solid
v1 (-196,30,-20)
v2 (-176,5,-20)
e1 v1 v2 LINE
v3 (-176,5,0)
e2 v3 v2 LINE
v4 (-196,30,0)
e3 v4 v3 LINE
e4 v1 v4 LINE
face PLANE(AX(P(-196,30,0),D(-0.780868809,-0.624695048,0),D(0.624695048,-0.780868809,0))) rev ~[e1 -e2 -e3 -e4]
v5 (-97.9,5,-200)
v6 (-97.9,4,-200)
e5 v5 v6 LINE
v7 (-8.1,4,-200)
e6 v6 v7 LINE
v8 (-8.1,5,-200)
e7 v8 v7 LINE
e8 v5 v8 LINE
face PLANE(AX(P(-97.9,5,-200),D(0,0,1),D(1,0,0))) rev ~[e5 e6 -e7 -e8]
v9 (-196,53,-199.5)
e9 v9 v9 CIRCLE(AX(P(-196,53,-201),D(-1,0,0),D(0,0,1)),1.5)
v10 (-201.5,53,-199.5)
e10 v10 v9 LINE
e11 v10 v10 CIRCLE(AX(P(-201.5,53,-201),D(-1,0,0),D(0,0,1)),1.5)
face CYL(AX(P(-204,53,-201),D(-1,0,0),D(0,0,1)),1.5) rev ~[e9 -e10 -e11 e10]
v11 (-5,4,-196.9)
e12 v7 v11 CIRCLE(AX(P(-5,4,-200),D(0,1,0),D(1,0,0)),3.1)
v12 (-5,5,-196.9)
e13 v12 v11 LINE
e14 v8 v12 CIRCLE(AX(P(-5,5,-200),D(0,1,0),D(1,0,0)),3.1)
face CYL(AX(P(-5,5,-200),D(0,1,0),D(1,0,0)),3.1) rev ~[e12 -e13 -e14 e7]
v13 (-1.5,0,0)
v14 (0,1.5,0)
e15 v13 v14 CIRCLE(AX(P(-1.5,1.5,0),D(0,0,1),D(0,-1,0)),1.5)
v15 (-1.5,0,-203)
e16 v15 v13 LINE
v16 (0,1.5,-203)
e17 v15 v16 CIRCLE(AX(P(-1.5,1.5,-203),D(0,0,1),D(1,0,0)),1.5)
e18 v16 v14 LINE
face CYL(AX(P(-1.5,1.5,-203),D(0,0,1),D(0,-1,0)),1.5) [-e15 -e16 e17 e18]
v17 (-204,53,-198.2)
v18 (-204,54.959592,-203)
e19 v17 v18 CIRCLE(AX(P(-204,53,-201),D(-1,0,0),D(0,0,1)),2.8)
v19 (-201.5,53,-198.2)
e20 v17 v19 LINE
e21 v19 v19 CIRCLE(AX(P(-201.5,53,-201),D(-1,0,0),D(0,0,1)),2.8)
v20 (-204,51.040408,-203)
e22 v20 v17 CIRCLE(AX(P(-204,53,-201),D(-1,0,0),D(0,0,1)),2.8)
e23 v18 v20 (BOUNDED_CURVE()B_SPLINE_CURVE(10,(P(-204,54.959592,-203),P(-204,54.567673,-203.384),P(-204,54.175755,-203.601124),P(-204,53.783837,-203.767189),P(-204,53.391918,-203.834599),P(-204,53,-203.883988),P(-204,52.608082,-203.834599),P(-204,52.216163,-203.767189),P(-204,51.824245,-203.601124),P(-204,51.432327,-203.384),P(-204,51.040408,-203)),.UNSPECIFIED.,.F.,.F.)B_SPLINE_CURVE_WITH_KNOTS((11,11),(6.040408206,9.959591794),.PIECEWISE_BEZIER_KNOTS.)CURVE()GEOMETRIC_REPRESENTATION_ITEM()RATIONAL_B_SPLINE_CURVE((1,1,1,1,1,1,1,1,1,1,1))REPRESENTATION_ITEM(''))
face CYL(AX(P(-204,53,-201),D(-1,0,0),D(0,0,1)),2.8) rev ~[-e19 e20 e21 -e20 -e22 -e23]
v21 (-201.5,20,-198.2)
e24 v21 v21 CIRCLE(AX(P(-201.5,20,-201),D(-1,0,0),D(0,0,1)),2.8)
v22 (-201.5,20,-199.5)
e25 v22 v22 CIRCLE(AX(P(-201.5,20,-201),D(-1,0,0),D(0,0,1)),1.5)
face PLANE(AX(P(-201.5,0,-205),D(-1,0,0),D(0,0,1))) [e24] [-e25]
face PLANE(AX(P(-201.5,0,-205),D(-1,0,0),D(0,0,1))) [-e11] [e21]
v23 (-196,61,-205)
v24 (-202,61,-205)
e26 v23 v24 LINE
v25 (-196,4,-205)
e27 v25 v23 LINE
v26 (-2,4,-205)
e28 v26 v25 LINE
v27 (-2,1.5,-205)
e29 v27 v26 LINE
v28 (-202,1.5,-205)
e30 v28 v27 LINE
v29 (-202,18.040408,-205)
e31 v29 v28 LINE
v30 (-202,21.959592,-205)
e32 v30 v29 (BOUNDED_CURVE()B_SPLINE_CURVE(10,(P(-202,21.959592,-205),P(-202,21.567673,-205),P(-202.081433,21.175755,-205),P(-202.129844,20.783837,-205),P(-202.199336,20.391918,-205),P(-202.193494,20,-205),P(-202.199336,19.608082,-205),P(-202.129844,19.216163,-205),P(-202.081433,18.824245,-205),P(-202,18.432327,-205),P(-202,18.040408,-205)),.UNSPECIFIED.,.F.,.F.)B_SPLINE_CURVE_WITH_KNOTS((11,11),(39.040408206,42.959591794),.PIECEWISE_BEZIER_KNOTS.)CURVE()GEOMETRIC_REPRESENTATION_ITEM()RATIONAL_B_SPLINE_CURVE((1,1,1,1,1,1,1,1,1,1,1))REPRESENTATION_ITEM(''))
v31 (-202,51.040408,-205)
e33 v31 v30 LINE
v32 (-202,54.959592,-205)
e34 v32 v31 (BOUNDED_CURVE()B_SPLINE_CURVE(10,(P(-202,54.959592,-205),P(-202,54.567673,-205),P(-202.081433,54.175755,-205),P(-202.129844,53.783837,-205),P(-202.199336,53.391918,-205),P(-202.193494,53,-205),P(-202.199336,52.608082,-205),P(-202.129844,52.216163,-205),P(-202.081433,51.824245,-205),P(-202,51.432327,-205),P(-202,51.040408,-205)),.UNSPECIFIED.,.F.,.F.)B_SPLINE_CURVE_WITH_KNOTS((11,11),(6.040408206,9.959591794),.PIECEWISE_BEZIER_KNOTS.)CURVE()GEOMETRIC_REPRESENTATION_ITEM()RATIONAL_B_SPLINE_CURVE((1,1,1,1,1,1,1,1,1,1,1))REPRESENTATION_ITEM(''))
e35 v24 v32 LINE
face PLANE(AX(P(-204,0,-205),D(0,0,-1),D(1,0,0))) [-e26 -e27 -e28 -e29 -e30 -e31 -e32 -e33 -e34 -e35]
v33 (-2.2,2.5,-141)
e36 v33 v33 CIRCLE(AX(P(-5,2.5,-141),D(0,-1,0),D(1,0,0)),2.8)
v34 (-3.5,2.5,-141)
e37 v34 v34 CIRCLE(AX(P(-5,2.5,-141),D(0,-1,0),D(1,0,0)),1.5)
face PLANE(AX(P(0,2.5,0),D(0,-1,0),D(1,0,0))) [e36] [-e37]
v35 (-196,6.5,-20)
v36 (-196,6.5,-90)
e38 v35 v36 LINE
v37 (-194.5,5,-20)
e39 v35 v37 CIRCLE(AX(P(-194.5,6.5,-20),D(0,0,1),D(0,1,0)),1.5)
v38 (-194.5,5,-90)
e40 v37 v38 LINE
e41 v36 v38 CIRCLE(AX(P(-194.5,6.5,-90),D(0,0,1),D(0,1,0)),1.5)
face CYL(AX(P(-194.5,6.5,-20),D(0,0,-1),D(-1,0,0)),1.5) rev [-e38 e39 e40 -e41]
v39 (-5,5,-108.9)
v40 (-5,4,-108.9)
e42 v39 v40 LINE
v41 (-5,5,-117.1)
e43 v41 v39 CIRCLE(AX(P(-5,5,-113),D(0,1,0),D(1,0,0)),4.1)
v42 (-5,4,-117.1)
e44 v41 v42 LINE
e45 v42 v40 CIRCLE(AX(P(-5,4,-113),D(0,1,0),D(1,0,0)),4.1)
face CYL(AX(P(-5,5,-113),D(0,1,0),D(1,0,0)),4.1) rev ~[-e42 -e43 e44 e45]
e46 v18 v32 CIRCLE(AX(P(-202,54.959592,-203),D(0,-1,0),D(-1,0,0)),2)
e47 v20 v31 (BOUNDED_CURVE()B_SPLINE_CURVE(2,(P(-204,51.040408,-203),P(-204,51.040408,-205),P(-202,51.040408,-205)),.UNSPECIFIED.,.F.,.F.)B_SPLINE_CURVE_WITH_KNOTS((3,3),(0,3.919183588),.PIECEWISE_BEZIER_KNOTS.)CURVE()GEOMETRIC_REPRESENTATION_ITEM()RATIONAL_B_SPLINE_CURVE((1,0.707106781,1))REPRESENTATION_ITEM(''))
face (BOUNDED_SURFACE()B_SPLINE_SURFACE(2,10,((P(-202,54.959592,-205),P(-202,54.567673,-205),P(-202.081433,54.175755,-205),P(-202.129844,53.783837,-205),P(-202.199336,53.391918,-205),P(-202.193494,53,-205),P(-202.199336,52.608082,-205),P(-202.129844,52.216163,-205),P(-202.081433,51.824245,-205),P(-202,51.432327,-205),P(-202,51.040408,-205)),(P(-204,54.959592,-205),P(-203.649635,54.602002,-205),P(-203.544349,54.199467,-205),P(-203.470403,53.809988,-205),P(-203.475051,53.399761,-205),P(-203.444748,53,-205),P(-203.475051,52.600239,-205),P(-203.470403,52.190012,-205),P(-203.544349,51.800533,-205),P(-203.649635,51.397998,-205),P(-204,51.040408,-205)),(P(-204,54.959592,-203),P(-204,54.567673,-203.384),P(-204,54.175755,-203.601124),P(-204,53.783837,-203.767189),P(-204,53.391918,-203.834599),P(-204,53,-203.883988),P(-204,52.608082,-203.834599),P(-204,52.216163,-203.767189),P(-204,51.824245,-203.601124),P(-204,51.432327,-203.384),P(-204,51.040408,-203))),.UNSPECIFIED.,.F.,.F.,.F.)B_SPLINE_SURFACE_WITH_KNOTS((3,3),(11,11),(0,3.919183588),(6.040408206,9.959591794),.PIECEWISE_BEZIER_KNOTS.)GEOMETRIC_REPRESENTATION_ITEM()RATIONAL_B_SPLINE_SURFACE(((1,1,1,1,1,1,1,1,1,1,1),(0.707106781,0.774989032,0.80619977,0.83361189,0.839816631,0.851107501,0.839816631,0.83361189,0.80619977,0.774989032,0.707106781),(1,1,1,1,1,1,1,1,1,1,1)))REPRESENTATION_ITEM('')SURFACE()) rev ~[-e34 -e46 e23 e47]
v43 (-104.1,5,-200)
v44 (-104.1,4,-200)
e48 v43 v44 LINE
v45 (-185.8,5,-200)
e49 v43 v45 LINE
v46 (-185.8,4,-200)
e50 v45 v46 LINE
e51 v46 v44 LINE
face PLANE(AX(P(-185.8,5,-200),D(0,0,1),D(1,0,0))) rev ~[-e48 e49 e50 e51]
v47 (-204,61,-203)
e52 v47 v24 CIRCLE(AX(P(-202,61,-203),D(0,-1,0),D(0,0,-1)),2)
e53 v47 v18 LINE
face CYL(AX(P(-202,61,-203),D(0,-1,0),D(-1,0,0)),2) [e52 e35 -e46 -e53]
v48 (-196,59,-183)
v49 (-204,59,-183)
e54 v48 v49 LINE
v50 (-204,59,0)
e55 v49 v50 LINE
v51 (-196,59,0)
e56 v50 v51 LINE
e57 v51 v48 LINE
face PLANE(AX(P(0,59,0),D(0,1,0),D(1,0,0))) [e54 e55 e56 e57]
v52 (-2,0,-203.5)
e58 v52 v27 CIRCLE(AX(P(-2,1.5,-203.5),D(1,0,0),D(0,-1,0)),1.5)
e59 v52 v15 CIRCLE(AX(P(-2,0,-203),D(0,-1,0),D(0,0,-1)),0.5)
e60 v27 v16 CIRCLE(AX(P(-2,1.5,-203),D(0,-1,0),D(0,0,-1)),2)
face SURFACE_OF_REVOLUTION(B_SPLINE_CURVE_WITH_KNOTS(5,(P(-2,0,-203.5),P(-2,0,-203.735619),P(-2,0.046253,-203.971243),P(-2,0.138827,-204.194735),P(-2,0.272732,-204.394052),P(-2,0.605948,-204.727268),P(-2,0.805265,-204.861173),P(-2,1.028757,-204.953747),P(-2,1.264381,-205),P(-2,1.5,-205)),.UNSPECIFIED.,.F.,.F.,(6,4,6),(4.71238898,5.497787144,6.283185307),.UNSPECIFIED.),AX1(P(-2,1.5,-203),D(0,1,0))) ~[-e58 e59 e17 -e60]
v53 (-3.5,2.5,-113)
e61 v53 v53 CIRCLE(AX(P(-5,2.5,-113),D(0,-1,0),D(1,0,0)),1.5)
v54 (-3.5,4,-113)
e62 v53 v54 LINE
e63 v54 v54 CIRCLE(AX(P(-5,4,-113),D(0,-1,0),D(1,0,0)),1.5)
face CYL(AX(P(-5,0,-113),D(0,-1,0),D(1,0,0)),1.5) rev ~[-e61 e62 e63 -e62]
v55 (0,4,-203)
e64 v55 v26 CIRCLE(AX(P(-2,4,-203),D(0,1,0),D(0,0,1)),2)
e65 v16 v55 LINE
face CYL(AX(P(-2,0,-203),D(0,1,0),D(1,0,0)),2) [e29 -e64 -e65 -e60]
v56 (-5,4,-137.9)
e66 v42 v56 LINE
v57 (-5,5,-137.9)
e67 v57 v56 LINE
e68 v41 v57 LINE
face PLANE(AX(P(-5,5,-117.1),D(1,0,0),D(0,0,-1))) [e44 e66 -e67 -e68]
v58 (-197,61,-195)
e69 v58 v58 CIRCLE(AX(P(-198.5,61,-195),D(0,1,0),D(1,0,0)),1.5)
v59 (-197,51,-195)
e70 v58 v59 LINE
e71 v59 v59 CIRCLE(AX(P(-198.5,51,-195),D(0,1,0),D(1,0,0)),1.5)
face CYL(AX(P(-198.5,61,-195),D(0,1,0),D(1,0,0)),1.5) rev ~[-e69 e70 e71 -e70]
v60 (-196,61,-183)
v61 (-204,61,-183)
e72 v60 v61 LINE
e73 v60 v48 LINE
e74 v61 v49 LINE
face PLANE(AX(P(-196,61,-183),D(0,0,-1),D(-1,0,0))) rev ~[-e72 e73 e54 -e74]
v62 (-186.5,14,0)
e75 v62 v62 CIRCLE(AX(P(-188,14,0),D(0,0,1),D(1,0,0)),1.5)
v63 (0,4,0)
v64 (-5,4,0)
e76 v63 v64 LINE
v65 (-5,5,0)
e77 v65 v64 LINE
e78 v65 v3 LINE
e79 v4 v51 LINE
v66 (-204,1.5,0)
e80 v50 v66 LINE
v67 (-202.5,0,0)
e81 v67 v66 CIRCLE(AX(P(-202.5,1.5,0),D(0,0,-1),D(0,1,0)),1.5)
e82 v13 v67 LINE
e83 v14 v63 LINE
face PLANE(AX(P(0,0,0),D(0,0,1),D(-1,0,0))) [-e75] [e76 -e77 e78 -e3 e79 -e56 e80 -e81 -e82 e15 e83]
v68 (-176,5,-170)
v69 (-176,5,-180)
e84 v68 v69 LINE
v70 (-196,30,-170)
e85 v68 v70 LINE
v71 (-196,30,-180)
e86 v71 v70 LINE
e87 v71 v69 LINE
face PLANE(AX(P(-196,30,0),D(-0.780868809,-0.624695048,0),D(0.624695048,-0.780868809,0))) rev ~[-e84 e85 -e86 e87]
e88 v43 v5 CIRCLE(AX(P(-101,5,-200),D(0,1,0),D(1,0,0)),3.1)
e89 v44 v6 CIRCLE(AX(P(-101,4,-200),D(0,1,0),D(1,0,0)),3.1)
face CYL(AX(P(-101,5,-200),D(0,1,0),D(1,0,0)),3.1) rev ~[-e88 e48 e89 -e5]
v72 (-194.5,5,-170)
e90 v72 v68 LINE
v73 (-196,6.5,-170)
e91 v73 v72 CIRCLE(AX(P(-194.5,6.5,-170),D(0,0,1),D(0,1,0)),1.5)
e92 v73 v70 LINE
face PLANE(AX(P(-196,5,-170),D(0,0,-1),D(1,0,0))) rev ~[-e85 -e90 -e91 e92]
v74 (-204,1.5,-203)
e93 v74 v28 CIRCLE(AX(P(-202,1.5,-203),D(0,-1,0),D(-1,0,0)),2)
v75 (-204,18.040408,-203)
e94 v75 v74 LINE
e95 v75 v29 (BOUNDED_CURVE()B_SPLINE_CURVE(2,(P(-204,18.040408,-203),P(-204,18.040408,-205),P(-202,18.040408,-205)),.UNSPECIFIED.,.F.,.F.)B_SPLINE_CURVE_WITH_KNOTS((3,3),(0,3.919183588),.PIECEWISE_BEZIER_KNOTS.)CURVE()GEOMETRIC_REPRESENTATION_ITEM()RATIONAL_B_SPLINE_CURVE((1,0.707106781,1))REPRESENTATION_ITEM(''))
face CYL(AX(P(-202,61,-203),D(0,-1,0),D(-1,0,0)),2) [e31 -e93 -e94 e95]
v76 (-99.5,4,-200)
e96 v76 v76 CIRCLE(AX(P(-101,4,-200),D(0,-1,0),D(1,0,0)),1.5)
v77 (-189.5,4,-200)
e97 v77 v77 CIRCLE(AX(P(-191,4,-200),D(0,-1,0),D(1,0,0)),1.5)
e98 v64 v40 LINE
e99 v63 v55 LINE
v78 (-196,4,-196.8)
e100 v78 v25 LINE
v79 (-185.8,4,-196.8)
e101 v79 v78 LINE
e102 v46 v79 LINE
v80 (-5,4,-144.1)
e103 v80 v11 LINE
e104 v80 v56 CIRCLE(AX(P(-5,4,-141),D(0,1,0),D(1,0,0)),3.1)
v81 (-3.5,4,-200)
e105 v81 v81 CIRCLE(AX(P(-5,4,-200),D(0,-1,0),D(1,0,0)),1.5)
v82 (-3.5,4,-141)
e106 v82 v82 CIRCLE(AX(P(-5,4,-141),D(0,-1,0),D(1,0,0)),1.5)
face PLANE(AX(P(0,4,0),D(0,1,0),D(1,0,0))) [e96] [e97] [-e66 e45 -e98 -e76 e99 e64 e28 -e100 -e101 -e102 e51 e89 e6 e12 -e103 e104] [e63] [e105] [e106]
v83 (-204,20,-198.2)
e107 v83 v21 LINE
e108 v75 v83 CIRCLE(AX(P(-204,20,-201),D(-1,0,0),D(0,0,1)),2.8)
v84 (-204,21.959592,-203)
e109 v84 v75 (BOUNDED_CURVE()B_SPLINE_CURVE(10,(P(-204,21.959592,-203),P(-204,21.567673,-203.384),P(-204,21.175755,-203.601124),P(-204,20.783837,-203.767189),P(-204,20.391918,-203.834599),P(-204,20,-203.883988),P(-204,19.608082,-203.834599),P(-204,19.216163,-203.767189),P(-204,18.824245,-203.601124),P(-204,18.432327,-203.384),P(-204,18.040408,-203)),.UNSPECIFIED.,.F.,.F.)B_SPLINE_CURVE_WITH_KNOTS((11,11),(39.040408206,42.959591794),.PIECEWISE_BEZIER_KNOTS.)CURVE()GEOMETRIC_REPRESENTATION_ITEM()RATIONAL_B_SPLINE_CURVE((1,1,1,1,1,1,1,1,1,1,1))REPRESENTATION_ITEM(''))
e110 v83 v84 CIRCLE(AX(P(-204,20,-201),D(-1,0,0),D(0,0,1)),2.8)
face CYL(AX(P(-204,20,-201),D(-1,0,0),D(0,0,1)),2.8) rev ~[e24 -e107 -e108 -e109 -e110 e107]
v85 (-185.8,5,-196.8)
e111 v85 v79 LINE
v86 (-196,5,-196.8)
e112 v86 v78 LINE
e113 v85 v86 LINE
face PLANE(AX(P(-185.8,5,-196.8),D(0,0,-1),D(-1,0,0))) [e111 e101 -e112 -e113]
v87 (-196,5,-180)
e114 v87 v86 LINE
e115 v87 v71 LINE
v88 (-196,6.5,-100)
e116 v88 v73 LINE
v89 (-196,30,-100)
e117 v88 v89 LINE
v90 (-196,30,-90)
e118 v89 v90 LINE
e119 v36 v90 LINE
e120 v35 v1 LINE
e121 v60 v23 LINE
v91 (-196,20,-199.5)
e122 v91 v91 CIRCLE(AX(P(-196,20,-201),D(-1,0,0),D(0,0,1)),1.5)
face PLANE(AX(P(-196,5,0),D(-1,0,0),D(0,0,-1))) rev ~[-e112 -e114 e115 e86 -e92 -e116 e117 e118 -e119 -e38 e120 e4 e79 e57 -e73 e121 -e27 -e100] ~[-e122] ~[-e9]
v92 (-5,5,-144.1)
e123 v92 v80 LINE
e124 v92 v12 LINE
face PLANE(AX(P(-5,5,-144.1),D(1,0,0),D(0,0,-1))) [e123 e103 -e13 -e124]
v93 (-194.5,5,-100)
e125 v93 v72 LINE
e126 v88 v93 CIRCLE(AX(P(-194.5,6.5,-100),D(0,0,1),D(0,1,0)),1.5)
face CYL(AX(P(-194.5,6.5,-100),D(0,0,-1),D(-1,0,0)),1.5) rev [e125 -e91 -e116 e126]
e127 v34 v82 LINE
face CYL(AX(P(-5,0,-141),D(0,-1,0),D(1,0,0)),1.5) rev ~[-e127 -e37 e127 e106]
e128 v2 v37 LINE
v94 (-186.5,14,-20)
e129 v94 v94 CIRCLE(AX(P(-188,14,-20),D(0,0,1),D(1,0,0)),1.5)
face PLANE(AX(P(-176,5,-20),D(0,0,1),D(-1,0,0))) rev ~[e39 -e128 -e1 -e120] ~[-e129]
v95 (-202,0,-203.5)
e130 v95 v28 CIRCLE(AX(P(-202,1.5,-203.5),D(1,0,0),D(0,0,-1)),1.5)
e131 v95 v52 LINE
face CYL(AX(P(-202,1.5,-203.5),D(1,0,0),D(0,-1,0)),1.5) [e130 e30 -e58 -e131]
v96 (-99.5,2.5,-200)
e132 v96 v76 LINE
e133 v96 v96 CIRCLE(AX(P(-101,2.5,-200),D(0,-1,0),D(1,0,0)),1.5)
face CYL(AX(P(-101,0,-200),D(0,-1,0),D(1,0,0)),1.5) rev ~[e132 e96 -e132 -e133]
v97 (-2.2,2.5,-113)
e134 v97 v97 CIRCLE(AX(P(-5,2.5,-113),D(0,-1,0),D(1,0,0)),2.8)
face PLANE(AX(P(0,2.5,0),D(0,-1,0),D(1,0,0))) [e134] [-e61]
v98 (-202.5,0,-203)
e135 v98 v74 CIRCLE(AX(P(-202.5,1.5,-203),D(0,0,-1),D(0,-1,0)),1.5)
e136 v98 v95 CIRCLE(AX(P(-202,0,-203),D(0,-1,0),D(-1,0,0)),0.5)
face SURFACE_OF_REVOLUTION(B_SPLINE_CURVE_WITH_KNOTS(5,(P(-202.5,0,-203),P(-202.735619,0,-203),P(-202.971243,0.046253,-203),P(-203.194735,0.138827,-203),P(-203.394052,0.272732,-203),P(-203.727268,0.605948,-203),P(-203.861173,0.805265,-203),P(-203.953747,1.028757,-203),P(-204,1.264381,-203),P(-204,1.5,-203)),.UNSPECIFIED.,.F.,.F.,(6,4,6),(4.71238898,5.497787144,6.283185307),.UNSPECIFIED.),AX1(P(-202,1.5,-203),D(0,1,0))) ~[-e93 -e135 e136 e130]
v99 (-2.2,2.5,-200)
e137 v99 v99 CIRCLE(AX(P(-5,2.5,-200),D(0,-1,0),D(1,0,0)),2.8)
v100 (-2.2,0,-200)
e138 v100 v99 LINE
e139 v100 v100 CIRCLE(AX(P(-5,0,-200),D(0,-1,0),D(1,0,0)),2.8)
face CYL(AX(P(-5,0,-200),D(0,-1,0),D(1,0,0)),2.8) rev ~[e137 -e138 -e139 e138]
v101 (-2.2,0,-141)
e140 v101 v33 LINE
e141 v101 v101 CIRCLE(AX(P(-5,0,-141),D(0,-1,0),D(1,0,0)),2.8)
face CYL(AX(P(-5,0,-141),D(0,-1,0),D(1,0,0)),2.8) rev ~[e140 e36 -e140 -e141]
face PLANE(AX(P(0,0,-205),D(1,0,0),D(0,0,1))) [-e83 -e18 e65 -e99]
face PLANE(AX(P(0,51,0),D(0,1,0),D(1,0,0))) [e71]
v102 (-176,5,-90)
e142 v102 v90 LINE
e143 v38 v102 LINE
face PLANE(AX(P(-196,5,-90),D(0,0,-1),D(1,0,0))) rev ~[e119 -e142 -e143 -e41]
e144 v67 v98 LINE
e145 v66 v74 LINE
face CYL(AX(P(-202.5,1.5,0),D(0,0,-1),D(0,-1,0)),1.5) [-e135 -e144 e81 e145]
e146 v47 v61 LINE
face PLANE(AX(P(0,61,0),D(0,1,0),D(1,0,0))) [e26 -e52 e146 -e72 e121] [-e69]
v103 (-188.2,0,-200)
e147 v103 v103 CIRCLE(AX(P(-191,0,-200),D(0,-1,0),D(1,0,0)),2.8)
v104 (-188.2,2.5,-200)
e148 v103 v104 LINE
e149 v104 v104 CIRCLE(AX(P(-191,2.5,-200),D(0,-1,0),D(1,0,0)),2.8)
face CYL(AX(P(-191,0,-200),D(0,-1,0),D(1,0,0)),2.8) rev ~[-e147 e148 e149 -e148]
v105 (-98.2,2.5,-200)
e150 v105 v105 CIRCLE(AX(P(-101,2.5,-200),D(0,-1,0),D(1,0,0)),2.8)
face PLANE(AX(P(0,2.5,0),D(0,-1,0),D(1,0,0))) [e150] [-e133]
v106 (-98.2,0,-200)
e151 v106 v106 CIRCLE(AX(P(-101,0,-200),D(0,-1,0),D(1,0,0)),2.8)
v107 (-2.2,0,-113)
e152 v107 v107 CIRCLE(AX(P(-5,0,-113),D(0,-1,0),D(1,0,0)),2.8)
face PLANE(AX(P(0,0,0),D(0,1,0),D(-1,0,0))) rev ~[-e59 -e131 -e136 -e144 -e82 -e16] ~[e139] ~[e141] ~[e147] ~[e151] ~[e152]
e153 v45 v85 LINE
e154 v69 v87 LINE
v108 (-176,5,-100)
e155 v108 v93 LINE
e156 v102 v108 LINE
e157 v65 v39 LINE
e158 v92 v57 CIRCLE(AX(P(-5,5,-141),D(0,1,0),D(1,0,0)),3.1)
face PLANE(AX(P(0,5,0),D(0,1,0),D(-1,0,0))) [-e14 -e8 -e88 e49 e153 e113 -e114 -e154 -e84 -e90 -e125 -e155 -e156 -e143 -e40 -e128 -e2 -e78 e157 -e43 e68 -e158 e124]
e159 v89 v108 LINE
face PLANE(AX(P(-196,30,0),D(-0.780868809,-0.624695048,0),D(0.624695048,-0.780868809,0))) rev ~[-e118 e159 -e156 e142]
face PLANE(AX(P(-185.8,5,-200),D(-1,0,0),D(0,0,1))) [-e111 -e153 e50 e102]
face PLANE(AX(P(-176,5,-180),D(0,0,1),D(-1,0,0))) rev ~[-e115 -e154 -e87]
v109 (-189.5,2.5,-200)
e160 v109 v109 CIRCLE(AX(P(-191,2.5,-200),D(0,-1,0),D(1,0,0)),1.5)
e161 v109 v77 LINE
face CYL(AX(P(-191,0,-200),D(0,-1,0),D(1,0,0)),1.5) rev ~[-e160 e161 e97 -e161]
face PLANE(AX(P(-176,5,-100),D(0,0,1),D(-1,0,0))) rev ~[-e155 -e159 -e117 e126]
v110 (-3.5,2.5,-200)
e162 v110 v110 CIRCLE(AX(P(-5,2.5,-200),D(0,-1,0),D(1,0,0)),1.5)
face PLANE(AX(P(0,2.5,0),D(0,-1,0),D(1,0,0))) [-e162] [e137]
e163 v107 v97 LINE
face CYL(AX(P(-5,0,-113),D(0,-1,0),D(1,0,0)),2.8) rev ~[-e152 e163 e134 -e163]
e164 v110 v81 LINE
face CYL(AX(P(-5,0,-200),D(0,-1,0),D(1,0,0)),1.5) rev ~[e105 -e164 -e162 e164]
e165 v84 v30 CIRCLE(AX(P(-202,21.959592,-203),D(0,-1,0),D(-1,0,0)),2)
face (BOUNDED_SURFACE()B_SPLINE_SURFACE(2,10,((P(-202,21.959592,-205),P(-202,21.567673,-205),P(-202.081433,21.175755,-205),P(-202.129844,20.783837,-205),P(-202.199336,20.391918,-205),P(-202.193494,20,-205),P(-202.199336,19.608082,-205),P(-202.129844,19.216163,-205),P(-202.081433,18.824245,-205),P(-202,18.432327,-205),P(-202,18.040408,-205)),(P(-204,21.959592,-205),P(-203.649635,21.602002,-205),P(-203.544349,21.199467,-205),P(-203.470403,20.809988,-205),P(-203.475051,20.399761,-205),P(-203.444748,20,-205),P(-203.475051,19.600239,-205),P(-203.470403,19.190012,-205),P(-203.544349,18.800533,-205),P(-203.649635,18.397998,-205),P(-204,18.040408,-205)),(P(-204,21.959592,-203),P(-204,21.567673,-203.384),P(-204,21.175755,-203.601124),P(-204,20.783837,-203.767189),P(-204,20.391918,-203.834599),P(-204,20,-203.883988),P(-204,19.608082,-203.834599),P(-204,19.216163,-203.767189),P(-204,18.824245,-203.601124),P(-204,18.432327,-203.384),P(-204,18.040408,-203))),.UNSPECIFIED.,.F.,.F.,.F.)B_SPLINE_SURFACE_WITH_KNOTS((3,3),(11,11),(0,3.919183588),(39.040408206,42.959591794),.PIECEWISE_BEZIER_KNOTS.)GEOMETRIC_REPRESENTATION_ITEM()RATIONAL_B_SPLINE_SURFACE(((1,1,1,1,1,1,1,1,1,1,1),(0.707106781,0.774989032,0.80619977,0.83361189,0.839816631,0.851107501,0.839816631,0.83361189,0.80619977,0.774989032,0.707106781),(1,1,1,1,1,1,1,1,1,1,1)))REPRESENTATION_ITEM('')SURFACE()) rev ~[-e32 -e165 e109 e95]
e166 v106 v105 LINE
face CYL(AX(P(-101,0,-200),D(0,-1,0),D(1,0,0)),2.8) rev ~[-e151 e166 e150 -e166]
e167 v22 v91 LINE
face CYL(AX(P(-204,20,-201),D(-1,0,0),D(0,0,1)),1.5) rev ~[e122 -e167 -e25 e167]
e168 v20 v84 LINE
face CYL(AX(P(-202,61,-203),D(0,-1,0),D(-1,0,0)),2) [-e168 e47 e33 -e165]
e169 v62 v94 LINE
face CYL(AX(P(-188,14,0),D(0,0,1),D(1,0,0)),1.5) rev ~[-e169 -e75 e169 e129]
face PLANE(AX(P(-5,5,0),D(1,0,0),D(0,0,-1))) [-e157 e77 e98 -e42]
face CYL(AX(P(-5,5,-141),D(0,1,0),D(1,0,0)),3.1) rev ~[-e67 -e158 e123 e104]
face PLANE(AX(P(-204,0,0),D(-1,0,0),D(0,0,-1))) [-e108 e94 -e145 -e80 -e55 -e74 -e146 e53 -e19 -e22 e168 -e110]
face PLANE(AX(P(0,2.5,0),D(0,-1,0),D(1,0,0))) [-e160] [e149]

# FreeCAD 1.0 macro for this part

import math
import FreeCAD as App
import Part
import Sketcher

V = App.Vector


def edges_at(feature, points):
    """Names of the edges that pass closest to the given points."""
    edges = feature.Shape.Edges
    near = lambda p: min(range(len(edges)), key=lambda i: edges[i].distToShape(Part.Vertex(*p))[0])
    return sorted({f"Edge{near(p) + 1}" for p in points})


def add_polygon(sketch, points):
    """Adds a closed chain of lines whose ends are joined by coincident constraints."""
    first, n = sketch.GeometryCount, len(points)
    for a, b in zip(points, points[1:] + points[:1]):
        sketch.addGeometry(Part.LineSegment(App.Vector(*a, 0), App.Vector(*b, 0)), False)
    for i in range(n):
        sketch.addConstraint(Sketcher.Constraint("Coincident", first + i, 2, first + (i + 1) % n, 1))

doc = App.newDocument("Part")
body = doc.addObject("PartDesign::Body", "Body")

# Sketch on XZ plane
sketch1 = body.newObject("Sketcher::SketchObject", "Sketch")
sketch1.AttachmentSupport = (doc.getObject("XZ_Plane"), [""])
sketch1.MapMode = "FlatFace"
add_polygon(sketch1, [(-204, 0), (0, 0), (0, -205), (-204, -205)])  # lines 0-3
sketch1.addConstraint(Sketcher.Constraint("Horizontal", 0))
sketch1.addConstraint(Sketcher.Constraint("Vertical", 1))
sketch1.addConstraint(Sketcher.Constraint("Horizontal", 2))
sketch1.addConstraint(Sketcher.Constraint("Vertical", 3))
sketch1.addConstraint(Sketcher.Constraint("Coincident", 0, 2, -1, 1))
sketch1.addConstraint(Sketcher.Constraint("DistanceX", 0, 1, 0, 2, 204.0))
sketch1.addConstraint(Sketcher.Constraint("DistanceY", 1, 2, 1, 1, 205.0))
pad1 = body.newObject("PartDesign::Pad", "Pad")
pad1.Profile = sketch1
pad1.Length = 5
pad1.Reversed = True

# Sketch on XZ plane
sketch2 = body.newObject("Sketcher::SketchObject", "Sketch001")
sketch2.AttachmentSupport = (doc.getObject("XZ_Plane"), [""])
sketch2.MapMode = "FlatFace"
sketch2.AttachmentOffset = App.Placement(V(0, 0, -5), App.Rotation())
add_polygon(sketch2, [(-196, -205), (-204, -205), (-204, 0), (-196, 0)])  # lines 0-3
sketch2.addConstraint(Sketcher.Constraint("Horizontal", 0))
sketch2.addConstraint(Sketcher.Constraint("Vertical", 1))
sketch2.addConstraint(Sketcher.Constraint("Horizontal", 2))
sketch2.addConstraint(Sketcher.Constraint("Vertical", 3))
sketch2.addConstraint(Sketcher.Constraint("PointOnObject", 1, 2, -1))
sketch2.addConstraint(Sketcher.Constraint("DistanceX", 0, 2, 0, 1, 8.0))
sketch2.addConstraint(Sketcher.Constraint("DistanceY", 1, 1, 1, 2, 205.0))
sketch2.addConstraint(Sketcher.Constraint("DistanceX", 0, 2, -1, 1, 204.0))
pad2 = body.newObject("PartDesign::Pad", "Pad001")
pad2.Profile = sketch2
pad2.Length = 56
pad2.Reversed = True

# Sketch on XZ plane
sketch3 = body.newObject("Sketcher::SketchObject", "Sketch002")
sketch3.AttachmentSupport = (doc.getObject("XZ_Plane"), [""])
sketch3.MapMode = "FlatFace"
sketch3.AttachmentOffset = App.Placement(V(0, 0, -61), App.Rotation())
add_polygon(sketch3, [(-196, -183), (-204, -183), (-204, 0), (-196, 0)])  # lines 0-3
sketch3.addConstraint(Sketcher.Constraint("Horizontal", 0))
sketch3.addConstraint(Sketcher.Constraint("Vertical", 1))
sketch3.addConstraint(Sketcher.Constraint("Horizontal", 2))
sketch3.addConstraint(Sketcher.Constraint("Vertical", 3))
sketch3.addConstraint(Sketcher.Constraint("PointOnObject", 1, 2, -1))
sketch3.addConstraint(Sketcher.Constraint("DistanceX", 0, 2, 0, 1, 8.0))
sketch3.addConstraint(Sketcher.Constraint("DistanceY", 1, 1, 1, 2, 183.0))
sketch3.addConstraint(Sketcher.Constraint("DistanceX", 0, 2, -1, 1, 204.0))
pocket1 = body.newObject("PartDesign::Pocket", "Pocket")
pocket1.Profile = sketch3
pocket1.Length = 2
pocket1.Reversed = True

# Sketch on XZ plane
sketch4 = body.newObject("Sketcher::SketchObject", "Sketch003")
sketch4.AttachmentSupport = (doc.getObject("XZ_Plane"), [""])
sketch4.MapMode = "FlatFace"
sketch4.AttachmentOffset = App.Placement(V(0, 0, -61), App.Rotation())
sketch4.addGeometry(Part.Circle(V(-198.5, -195, 0), V(0, 0, 1), 1.5), False)
sketch4.addConstraint(Sketcher.Constraint("Diameter", 0, 3.0))
sketch4.addConstraint(Sketcher.Constraint("DistanceY", 0, 3, -1, 1, 195.0))
sketch4.addConstraint(Sketcher.Constraint("DistanceX", 0, 3, -1, 1, 198.5))
pocket2 = body.newObject("PartDesign::Pocket", "Pocket001")
pocket2.Profile = sketch4
pocket2.Length = 10
pocket2.Reversed = True

# Sketch on YZ plane
sketch5 = body.newObject("Sketcher::SketchObject", "Sketch004")
sketch5.AttachmentSupport = (doc.getObject("YZ_Plane"), [""])
sketch5.MapMode = "FlatFace"
sketch5.AttachmentOffset = App.Placement(V(0, 0, -204), App.Rotation())
sketch5.addGeometry(Part.Circle(V(53, -201, 0), V(0, 0, 1), 1.5), False)
sketch5.addGeometry(Part.Circle(V(20, -201, 0), V(0, 0, 1), 1.5), False)
sketch5.addConstraint(Sketcher.Constraint("Equal", 0, 1))
sketch5.addConstraint(Sketcher.Constraint("Horizontal", 0, 3, 1, 3))
sketch5.addConstraint(Sketcher.Constraint("Diameter", 0, 3.0))
sketch5.addConstraint(Sketcher.Constraint("DistanceX", 1, 3, 0, 3, 33.0))
sketch5.addConstraint(Sketcher.Constraint("DistanceX", -1, 1, 0, 3, 53.0))
sketch5.addConstraint(Sketcher.Constraint("DistanceY", 0, 3, -1, 1, 201.0))
pocket3 = body.newObject("PartDesign::Pocket", "Pocket002")
pocket3.Profile = sketch5
pocket3.Length = 10
pocket3.Reversed = True

# Sketch on YZ plane
sketch6 = body.newObject("Sketcher::SketchObject", "Sketch005")
sketch6.AttachmentSupport = (doc.getObject("YZ_Plane"), [""])
sketch6.MapMode = "FlatFace"
sketch6.AttachmentOffset = App.Placement(V(0, 0, -204), App.Rotation())
sketch6.addGeometry(Part.Circle(V(53, -201, 0), V(0, 0, 1), 2.8), False)
sketch6.addGeometry(Part.Circle(V(53, -201, 0), V(0, 0, 1), 1.5), False)
sketch6.addGeometry(Part.Circle(V(20, -201, 0), V(0, 0, 1), 2.8), False)
sketch6.addGeometry(Part.Circle(V(20, -201, 0), V(0, 0, 1), 1.5), False)
sketch6.addConstraint(Sketcher.Constraint("Coincident", 1, 3, 0, 3))
sketch6.addConstraint(Sketcher.Constraint("Coincident", 3, 3, 2, 3))
sketch6.addConstraint(Sketcher.Constraint("Equal", 0, 2))
sketch6.addConstraint(Sketcher.Constraint("Equal", 1, 3))
sketch6.addConstraint(Sketcher.Constraint("Horizontal", 1, 3, 2, 3))
sketch6.addConstraint(Sketcher.Constraint("Diameter", 0, 5.6))
sketch6.addConstraint(Sketcher.Constraint("Diameter", 1, 3.0))
sketch6.addConstraint(Sketcher.Constraint("DistanceX", -1, 1, 0, 3, 53.0))
sketch6.addConstraint(Sketcher.Constraint("DistanceY", 0, 3, -1, 1, 201.0))
sketch6.addConstraint(Sketcher.Constraint("DistanceX", -1, 1, 2, 3, 20.0))
pocket4 = body.newObject("PartDesign::Pocket", "Pocket003")
pocket4.Profile = sketch6
pocket4.Length = 2.5
pocket4.Reversed = True

# Sketch on XZ plane
sketch7 = body.newObject("Sketcher::SketchObject", "Sketch006")
sketch7.AttachmentSupport = (doc.getObject("XZ_Plane"), [""])
sketch7.MapMode = "FlatFace"
sketch7.addGeometry(Part.Circle(V(-191, -200, 0), V(0, 0, 1), 1.5), False)
sketch7.addGeometry(Part.Circle(V(-101, -200, 0), V(0, 0, 1), 1.5), False)
sketch7.addGeometry(Part.Circle(V(-5, -200, 0), V(0, 0, 1), 1.5), False)
sketch7.addGeometry(Part.Circle(V(-5, -141, 0), V(0, 0, 1), 1.5), False)
sketch7.addGeometry(Part.Circle(V(-5, -113, 0), V(0, 0, 1), 1.5), False)
sketch7.addConstraint(Sketcher.Constraint("Equal", 0, 1))
sketch7.addConstraint(Sketcher.Constraint("Equal", 1, 2))
sketch7.addConstraint(Sketcher.Constraint("Equal", 2, 3))
sketch7.addConstraint(Sketcher.Constraint("Equal", 3, 4))
sketch7.addConstraint(Sketcher.Constraint("Horizontal", 0, 3, 1, 3))
sketch7.addConstraint(Sketcher.Constraint("Horizontal", 1, 3, 2, 3))
sketch7.addConstraint(Sketcher.Constraint("Vertical", 2, 3, 3, 3))
sketch7.addConstraint(Sketcher.Constraint("Vertical", 3, 3, 4, 3))
sketch7.addConstraint(Sketcher.Constraint("Diameter", 0, 3.0))
sketch7.addConstraint(Sketcher.Constraint("DistanceX", 2, 3, -1, 1, 5.0))
sketch7.addConstraint(Sketcher.Constraint("DistanceX", 0, 3, 1, 3, 90.0))
sketch7.addConstraint(Sketcher.Constraint("DistanceX", 1, 3, 2, 3, 96.0))
sketch7.addConstraint(Sketcher.Constraint("DistanceY", 2, 3, 3, 3, 59.0))
sketch7.addConstraint(Sketcher.Constraint("DistanceY", 3, 3, 4, 3, 28.0))
sketch7.addConstraint(Sketcher.Constraint("DistanceY", 0, 3, -1, 1, 200.0))
pocket5 = body.newObject("PartDesign::Pocket", "Pocket004")
pocket5.Profile = sketch7
pocket5.Type = "ThroughAll"

# Sketch on XZ plane
sketch8 = body.newObject("Sketcher::SketchObject", "Sketch007")
sketch8.AttachmentSupport = (doc.getObject("XZ_Plane"), [""])
sketch8.MapMode = "FlatFace"
sketch8.addGeometry(Part.Circle(V(-5, -113, 0), V(0, 0, 1), 2.8), False)
sketch8.addGeometry(Part.Circle(V(-5, -113, 0), V(0, 0, 1), 1.5), False)
sketch8.addGeometry(Part.Circle(V(-5, -141, 0), V(0, 0, 1), 2.8), False)
sketch8.addGeometry(Part.Circle(V(-5, -141, 0), V(0, 0, 1), 1.5), False)
sketch8.addGeometry(Part.Circle(V(-5, -200, 0), V(0, 0, 1), 2.8), False)
sketch8.addGeometry(Part.Circle(V(-5, -200, 0), V(0, 0, 1), 1.5), False)
sketch8.addGeometry(Part.Circle(V(-101, -200, 0), V(0, 0, 1), 2.8), False)
sketch8.addGeometry(Part.Circle(V(-101, -200, 0), V(0, 0, 1), 1.5), False)
sketch8.addGeometry(Part.Circle(V(-191, -200, 0), V(0, 0, 1), 2.8), False)
sketch8.addGeometry(Part.Circle(V(-191, -200, 0), V(0, 0, 1), 1.5), False)
sketch8.addConstraint(Sketcher.Constraint("Coincident", 1, 3, 0, 3))
sketch8.addConstraint(Sketcher.Constraint("Coincident", 3, 3, 2, 3))
sketch8.addConstraint(Sketcher.Constraint("Coincident", 5, 3, 4, 3))
sketch8.addConstraint(Sketcher.Constraint("Coincident", 7, 3, 6, 3))
sketch8.addConstraint(Sketcher.Constraint("Coincident", 9, 3, 8, 3))
sketch8.addConstraint(Sketcher.Constraint("Equal", 0, 2))
sketch8.addConstraint(Sketcher.Constraint("Equal", 1, 3))
sketch8.addConstraint(Sketcher.Constraint("Equal", 2, 4))
sketch8.addConstraint(Sketcher.Constraint("Equal", 3, 5))
sketch8.addConstraint(Sketcher.Constraint("Equal", 4, 6))
sketch8.addConstraint(Sketcher.Constraint("Equal", 5, 7))
sketch8.addConstraint(Sketcher.Constraint("Equal", 6, 8))
sketch8.addConstraint(Sketcher.Constraint("Equal", 7, 9))
sketch8.addConstraint(Sketcher.Constraint("Horizontal", 5, 3, 6, 3))
sketch8.addConstraint(Sketcher.Constraint("Horizontal", 7, 3, 8, 3))
sketch8.addConstraint(Sketcher.Constraint("Vertical", 1, 3, 2, 3))
sketch8.addConstraint(Sketcher.Constraint("Vertical", 3, 3, 4, 3))
sketch8.addConstraint(Sketcher.Constraint("Diameter", 0, 5.6))
sketch8.addConstraint(Sketcher.Constraint("Diameter", 1, 3.0))
sketch8.addConstraint(Sketcher.Constraint("DistanceX", 0, 3, -1, 1, 5.0))
sketch8.addConstraint(Sketcher.Constraint("DistanceY", 0, 3, -1, 1, 113.0))
sketch8.addConstraint(Sketcher.Constraint("DistanceY", 2, 3, -1, 1, 141.0))
sketch8.addConstraint(Sketcher.Constraint("DistanceY", 4, 3, -1, 1, 200.0))
sketch8.addConstraint(Sketcher.Constraint("DistanceX", 6, 3, -1, 1, 101.0))
sketch8.addConstraint(Sketcher.Constraint("DistanceX", 8, 3, -1, 1, 191.0))
pocket6 = body.newObject("PartDesign::Pocket", "Pocket005")
pocket6.Profile = sketch8
pocket6.Length = 2.5

# Sketch on XZ plane
sketch9 = body.newObject("Sketcher::SketchObject", "Sketch008")
sketch9.AttachmentSupport = (doc.getObject("XZ_Plane"), [""])
sketch9.MapMode = "FlatFace"
sketch9.AttachmentOffset = App.Placement(V(0, 0, -5), App.Rotation())
sketch9.addGeometry(Part.LineSegment(V(0, -205, 0), V(-196, -205, 0)), False)
sketch9.addGeometry(Part.LineSegment(V(-196, -205, 0), V(-196, -196.8, 0)), False)
sketch9.addGeometry(Part.LineSegment(V(-196, -196.8, 0), V(-185.8, -196.8, 0)), False)
sketch9.addGeometry(Part.LineSegment(V(-185.8, -196.8, 0), V(-185.8, -200, 0)), False)
sketch9.addGeometry(Part.LineSegment(V(-185.8, -200, 0), V(-104.1, -200, 0)), False)
sketch9.addGeometry(Part.ArcOfCircle(Part.Circle(V(-101, -200, 0), V(0, 0, 1), 3.1), math.radians(0), math.radians(180)), False)
sketch9.addGeometry(Part.LineSegment(V(-97.9, -200, 0), V(-8.1, -200, 0)), False)
sketch9.addGeometry(Part.ArcOfCircle(Part.Circle(V(-5, -200, 0), V(0, 0, 1), 3.1), math.radians(90), math.radians(180)), False)
sketch9.addGeometry(Part.LineSegment(V(-5, -196.9, 0), V(-5, -144.1, 0)), False)
sketch9.addGeometry(Part.ArcOfCircle(Part.Circle(V(-5, -141, 0), V(0, 0, 1), 3.1), math.radians(90), math.radians(270)), False)
sketch9.addGeometry(Part.LineSegment(V(-5, -137.9, 0), V(-5, -117.1, 0)), False)
sketch9.addGeometry(Part.ArcOfCircle(Part.Circle(V(-5, -113, 0), V(0, 0, 1), 4.1), math.radians(90), math.radians(270)), False)
sketch9.addGeometry(Part.LineSegment(V(-5, -108.9, 0), V(-5, 0, 0)), False)
sketch9.addGeometry(Part.LineSegment(V(-5, 0, 0), V(0, 0, 0)), False)
sketch9.addGeometry(Part.LineSegment(V(0, 0, 0), V(0, -205, 0)), False)
sketch9.addGeometry(Part.ArcOfCircle(Part.Circle(V(-101, -200, 0), V(0, 0, 1), 1.5), math.radians(0), math.radians(180)), False)
sketch9.addGeometry(Part.LineSegment(V(-102.5, -200, 0), V(-99.5, -200, 0)), False)
sketch9.addConstraint(Sketcher.Constraint("Coincident", 0, 2, 1, 1))
sketch9.addConstraint(Sketcher.Constraint("Coincident", 1, 2, 2, 1))
sketch9.addConstraint(Sketcher.Constraint("Coincident", 2, 2, 3, 1))
sketch9.addConstraint(Sketcher.Constraint("Coincident", 3, 2, 4, 1))
sketch9.addConstraint(Sketcher.Constraint("Coincident", 4, 2, 5, 2))
sketch9.addConstraint(Sketcher.Constraint("Coincident", 5, 1, 6, 1))
sketch9.addConstraint(Sketcher.Constraint("Coincident", 6, 2, 7, 2))
sketch9.addConstraint(Sketcher.Constraint("Coincident", 7, 1, 8, 1))
sketch9.addConstraint(Sketcher.Constraint("Coincident", 8, 2, 9, 2))
sketch9.addConstraint(Sketcher.Constraint("Coincident", 9, 1, 10, 1))
sketch9.addConstraint(Sketcher.Constraint("Coincident", 10, 2, 11, 2))
sketch9.addConstraint(Sketcher.Constraint("Coincident", 11, 1, 12, 1))
sketch9.addConstraint(Sketcher.Constraint("Coincident", 12, 2, 13, 1))
sketch9.addConstraint(Sketcher.Constraint("Coincident", 13, 2, 14, 1))
sketch9.addConstraint(Sketcher.Constraint("Coincident", 14, 2, 0, 1))
sketch9.addConstraint(Sketcher.Constraint("Coincident", 15, 1, 16, 2))
sketch9.addConstraint(Sketcher.Constraint("Coincident", 16, 1, 15, 2))
sketch9.addConstraint(Sketcher.Constraint("Horizontal", 0))
sketch9.addConstraint(Sketcher.Constraint("Vertical", 1))
sketch9.addConstraint(Sketcher.Constraint("Horizontal", 2))
sketch9.addConstraint(Sketcher.Constraint("Vertical", 3))
sketch9.addConstraint(Sketcher.Constraint("Horizontal", 4))
sketch9.addConstraint(Sketcher.Constraint("Horizontal", 6))
sketch9.addConstraint(Sketcher.Constraint("Vertical", 8))
sketch9.addConstraint(Sketcher.Constraint("Vertical", 10))
sketch9.addConstraint(Sketcher.Constraint("Vertical", 12))
sketch9.addConstraint(Sketcher.Constraint("Horizontal", 13))
sketch9.addConstraint(Sketcher.Constraint("Vertical", 14))
sketch9.addConstraint(Sketcher.Constraint("Horizontal", 16))
sketch9.addConstraint(Sketcher.Constraint("Coincident", 13, 2, -1, 1))
sketch9.addConstraint(Sketcher.Constraint("Coincident", 15, 3, 5, 3))
sketch9.addConstraint(Sketcher.Constraint("Equal", 5, 7))
sketch9.addConstraint(Sketcher.Constraint("Equal", 7, 9))
sketch9.addConstraint(Sketcher.Constraint("Horizontal", 5, 3, 7, 3))
sketch9.addConstraint(Sketcher.Constraint("Horizontal", 15, 3, 3, 2))
sketch9.addConstraint(Sketcher.Constraint("Horizontal", 4, 2, 5, 1))
sketch9.addConstraint(Sketcher.Constraint("Horizontal", 6, 2, 15, 1))
sketch9.addConstraint(Sketcher.Constraint("Vertical", 7, 3, 9, 3))
sketch9.addConstraint(Sketcher.Constraint("Vertical", 9, 3, 11, 3))
sketch9.addConstraint(Sketcher.Constraint("Vertical", 11, 3, 7, 1))
sketch9.addConstraint(Sketcher.Constraint("Vertical", 8, 2, 9, 1))
sketch9.addConstraint(Sketcher.Constraint("Vertical", 10, 2, 11, 1))
sketch9.addConstraint(Sketcher.Constraint("Radius", 5, 3.1))
sketch9.addConstraint(Sketcher.Constraint("Radius", 11, 4.1))
sketch9.addConstraint(Sketcher.Constraint("DistanceX", 13, 1, 13, 2, 5.0))
sketch9.addConstraint(Sketcher.Constraint("DistanceX", 2, 1, 2, 2, 10.2))
sketch9.addConstraint(Sketcher.Constraint("DistanceY", 1, 1, 1, 2, 8.2))
sketch9.addConstraint(Sketcher.Constraint("DistanceY", 0, 2, 5, 3, 5.0))
sketch9.addConstraint(Sketcher.Constraint("Radius", 15, 1.5))
sketch9.addConstraint(Sketcher.Constraint("DistanceX", 0, 2, 0, 1, 196.0))
sketch9.addConstraint(Sketcher.Constraint("DistanceY", 14, 2, 14, 1, 205.0))
sketch9.addConstraint(Sketcher.Constraint("DistanceX", 4, 1, 4, 2, 81.7))
sketch9.addConstraint(Sketcher.Constraint("DistanceY", 8, 1, 8, 2, 52.8))
sketch9.addConstraint(Sketcher.Constraint("DistanceY", 10, 1, 10, 2, 20.8))
pocket7 = body.newObject("PartDesign::Pocket", "Pocket006")
pocket7.Profile = sketch9
pocket7.Length = 1
pocket7.Reversed = True

# Sketch on XZ plane
sketch10 = body.newObject("Sketcher::SketchObject", "Sketch009")
sketch10.AttachmentSupport = (doc.getObject("XZ_Plane"), [""])
sketch10.MapMode = "FlatFace"
sketch10.AttachmentOffset = App.Placement(V(0, 0, -5), App.Rotation())
add_polygon(sketch10, [(-196, -20), (-196, 0), (-176, 0), (-176, -20)])  # lines 0-3
add_polygon(sketch10, [(-196, -180), (-196, -170), (-176, -170), (-176, -180)])  # lines 4-7
add_polygon(sketch10, [(-196, -100), (-196, -90), (-176, -90), (-176, -100)])  # lines 8-11
sketch10.addConstraint(Sketcher.Constraint("Vertical", 0))
sketch10.addConstraint(Sketcher.Constraint("Horizontal", 1))
sketch10.addConstraint(Sketcher.Constraint("Vertical", 2))
sketch10.addConstraint(Sketcher.Constraint("Horizontal", 3))
sketch10.addConstraint(Sketcher.Constraint("Vertical", 4))
sketch10.addConstraint(Sketcher.Constraint("Horizontal", 5))
sketch10.addConstraint(Sketcher.Constraint("Vertical", 6))
sketch10.addConstraint(Sketcher.Constraint("Horizontal", 7))
sketch10.addConstraint(Sketcher.Constraint("Vertical", 8))
sketch10.addConstraint(Sketcher.Constraint("Horizontal", 9))
sketch10.addConstraint(Sketcher.Constraint("Vertical", 10))
sketch10.addConstraint(Sketcher.Constraint("Horizontal", 11))
sketch10.addConstraint(Sketcher.Constraint("PointOnObject", 0, 2, -1))
sketch10.addConstraint(Sketcher.Constraint("Vertical", 3, 2, 4, 2))
sketch10.addConstraint(Sketcher.Constraint("Vertical", 2, 2, 5, 2))
sketch10.addConstraint(Sketcher.Constraint("Vertical", 7, 2, 8, 2))
sketch10.addConstraint(Sketcher.Constraint("Vertical", 6, 2, 9, 2))
sketch10.addConstraint(Sketcher.Constraint("Equal", 11, 0))
sketch10.addConstraint(Sketcher.Constraint("Equal", 6, 8))
sketch10.addConstraint(Sketcher.Constraint("DistanceX", 1, 1, 1, 2, 20.0))
sketch10.addConstraint(Sketcher.Constraint("DistanceY", 4, 1, 4, 2, 10.0))
sketch10.addConstraint(Sketcher.Constraint("DistanceY", 8, 2, 3, 2, 70.0))
sketch10.addConstraint(Sketcher.Constraint("DistanceY", 5, 2, 10, 2, 70.0))
sketch10.addConstraint(Sketcher.Constraint("DistanceX", 0, 2, -1, 1, 196.0))
pad3 = body.newObject("PartDesign::Pad", "Pad002")
pad3.Profile = sketch10
pad3.Length = 25
pad3.Reversed = True

# Sketch on XY plane
sketch11 = body.newObject("Sketcher::SketchObject", "Sketch010")
sketch11.AttachmentSupport = (doc.getObject("XY_Plane"), [""])
sketch11.MapMode = "FlatFace"
add_polygon(sketch11, [(-196, 30), (-176, 5), (-176, 30)])  # lines 0-2
sketch11.addConstraint(Sketcher.Constraint("Vertical", 1))
sketch11.addConstraint(Sketcher.Constraint("Horizontal", 2))
sketch11.addConstraint(Sketcher.Constraint("DistanceX", 2, 2, 2, 1, 20.0))
sketch11.addConstraint(Sketcher.Constraint("DistanceY", 1, 1, 1, 2, 25.0))
sketch11.addConstraint(Sketcher.Constraint("DistanceX", 0, 2, -1, 1, 176.0))
sketch11.addConstraint(Sketcher.Constraint("DistanceY", -1, 1, 0, 2, 5.0))
pocket8 = body.newObject("PartDesign::Pocket", "Pocket007")
pocket8.Profile = sketch11
pocket8.Type = "ThroughAll"

# Sketch on XY plane
sketch12 = body.newObject("Sketcher::SketchObject", "Sketch011")
sketch12.AttachmentSupport = (doc.getObject("XY_Plane"), [""])
sketch12.MapMode = "FlatFace"
sketch12.addGeometry(Part.Circle(V(-188, 14, 0), V(0, 0, 1), 1.5), False)
sketch12.addConstraint(Sketcher.Constraint("Diameter", 0, 3.0))
sketch12.addConstraint(Sketcher.Constraint("DistanceX", 0, 3, -1, 1, 188.0))
sketch12.addConstraint(Sketcher.Constraint("DistanceY", -1, 1, 0, 3, 14.0))
pocket9 = body.newObject("PartDesign::Pocket", "Pocket008")
pocket9.Profile = sketch12
pocket9.Length = 25
doc.recompute()

fillet = body.newObject("PartDesign::Fillet", "Fillet")
fillet.Base = (pocket9, edges_at(pocket9, [(-204, 30.5, -205), (0, 2, -205)]))
fillet.Radius = 2
doc.recompute()

fillet2 = body.newObject("PartDesign::Fillet", "Fillet001")
fillet2.Base = (fillet, edges_at(fillet, [
    (-203.414, 0, -204.414),
    (-102, 0, -205),
    (-204, 0, -101.5),
    (0, 0, -101.5),
]))
fillet2.Radius = 1.5
doc.recompute()

fillet3 = body.newObject("PartDesign::Fillet", "Fillet002")
fillet3.Base = (fillet2, edges_at(fillet2, [(-196, 5, -135), (-196, 5, -55)]))
fillet3.Radius = 1.5

doc.recompute()
